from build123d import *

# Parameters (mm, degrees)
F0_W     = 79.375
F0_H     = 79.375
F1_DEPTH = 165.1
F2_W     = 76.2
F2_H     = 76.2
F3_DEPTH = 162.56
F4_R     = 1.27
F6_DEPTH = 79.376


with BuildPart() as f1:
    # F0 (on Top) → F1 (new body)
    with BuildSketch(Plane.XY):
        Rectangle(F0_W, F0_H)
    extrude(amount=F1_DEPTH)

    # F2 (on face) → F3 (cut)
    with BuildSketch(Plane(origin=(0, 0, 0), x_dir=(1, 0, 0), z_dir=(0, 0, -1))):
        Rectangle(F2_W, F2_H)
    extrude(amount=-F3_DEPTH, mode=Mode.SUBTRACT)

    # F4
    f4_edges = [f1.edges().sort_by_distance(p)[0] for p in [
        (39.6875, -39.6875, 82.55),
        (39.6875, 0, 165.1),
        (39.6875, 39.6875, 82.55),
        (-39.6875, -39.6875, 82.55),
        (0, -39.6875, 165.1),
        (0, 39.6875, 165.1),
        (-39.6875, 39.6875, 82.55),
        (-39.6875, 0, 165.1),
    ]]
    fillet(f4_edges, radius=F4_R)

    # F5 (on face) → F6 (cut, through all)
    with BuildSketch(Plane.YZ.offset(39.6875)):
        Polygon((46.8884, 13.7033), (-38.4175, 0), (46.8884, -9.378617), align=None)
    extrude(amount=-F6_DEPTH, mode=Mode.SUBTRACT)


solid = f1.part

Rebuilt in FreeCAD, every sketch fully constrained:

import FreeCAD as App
import Part
import Sketcher

V = App.Vector
Q = App.Units.Quantity


def edges_at(feature, points):
    """Names of the edges that pass closest to the given points."""
    edges = feature.Shape.Edges
    near = lambda p: min(range(len(edges)), key=lambda i: edges[i].distToShape(Part.Vertex(*p))[0])
    return sorted({f"Edge{near(p) + 1}" for p in points})


def add_polygon(sketch, points):
    """Adds a closed chain of lines whose ends are joined by coincident constraints."""
    first, n = sketch.GeometryCount, len(points)
    for a, b in zip(points, points[1:] + points[:1]):
        sketch.addGeometry(Part.LineSegment(App.Vector(*a, 0), App.Vector(*b, 0)), False)
    for i in range(n):
        sketch.addConstraint(Sketcher.Constraint("Coincident", first + i, 2, first + (i + 1) % n, 1))

doc = App.newDocument("Part")
params = doc.addObject("Spreadsheet::Sheet", "Params")
for row, (alias, value) in enumerate([
    ("sketch1_width", "3.125 in"),
    ("pad1_length", "6.5 in"),
    ("sketch2_width", "3 in"),
    ("pocket1_length", "6.4 in"),
    ("fillet_radius", "0.05 in"),
], start=1):
    params.set(f"A{row}", alias)
    params.set(f"B{row}", "=" + value)
    params.setAlias(f"B{row}", alias)

body = doc.addObject("PartDesign::Body", "Body")

# Sketch on XY plane
sketch1 = body.newObject("Sketcher::SketchObject", "Sketch")
sketch1.AttachmentSupport = (doc.getObject("XY_Plane"), [""])
sketch1.MapMode = "FlatFace"
add_polygon(sketch1, [(-39.6875, 39.6875), (-39.6875, -39.6875), (39.6875, -39.6875), (39.6875, 39.6875)])  # lines 0-3
sketch1.addConstraint(Sketcher.Constraint("Vertical", 0))
sketch1.addConstraint(Sketcher.Constraint("Horizontal", 1))
sketch1.addConstraint(Sketcher.Constraint("Vertical", 2))
sketch1.addConstraint(Sketcher.Constraint("Horizontal", 3))
sketch1.addConstraint(Sketcher.Constraint("Symmetric", 0, 2, 2, 2, -1, 1))
sketch1.addConstraint(Sketcher.Constraint("Equal", 3, 0))
sketch1.addConstraint(Sketcher.Constraint("DistanceX", 1, 1, 1, 2, Q("3.125 in")))
sketch1.setExpression("Constraints[10]", "Params.sketch1_width")
pad1 = body.newObject("PartDesign::Pad", "Pad")
pad1.Profile = sketch1
pad1.setExpression("Length", "Params.pad1_length")

# Sketch on XY plane
sketch2 = body.newObject("Sketcher::SketchObject", "Sketch001")
sketch2.AttachmentSupport = (doc.getObject("XY_Plane"), [""])
sketch2.MapMode = "FlatFace"
add_polygon(sketch2, [(-38.1, -38.1), (-38.1, 38.1), (38.1, 38.1), (38.1, -38.1)])  # lines 0-3
sketch2.addConstraint(Sketcher.Constraint("Vertical", 0))
sketch2.addConstraint(Sketcher.Constraint("Horizontal", 1))
sketch2.addConstraint(Sketcher.Constraint("Vertical", 2))
sketch2.addConstraint(Sketcher.Constraint("Horizontal", 3))
sketch2.addConstraint(Sketcher.Constraint("Symmetric", 0, 2, 2, 2, -1, 1))
sketch2.addConstraint(Sketcher.Constraint("Equal", 3, 0))
sketch2.addConstraint(Sketcher.Constraint("DistanceX", 1, 1, 1, 2, Q("3 in")))
sketch2.setExpression("Constraints[10]", "Params.sketch2_width")
pocket1 = body.newObject("PartDesign::Pocket", "Pocket")
pocket1.Profile = sketch2
pocket1.setExpression("Length", "Params.pocket1_length")
pocket1.Reversed = True
doc.recompute()

fillet = body.newObject("PartDesign::Fillet", "Fillet")
fillet.Base = (pocket1, edges_at(pocket1, [
    (39.688, -39.688, 82.55),
    (39.688, 0, 165.1),
    (39.688, 39.688, 82.55),
    (-39.688, -39.688, 82.55),
    (0, -39.688, 165.1),
    (0, 39.688, 165.1),
    (-39.688, 39.688, 82.55),
    (-39.688, 0, 165.1),
]))
fillet.setExpression("Radius", "Params.fillet_radius")

# Sketch on YZ plane
sketch3 = body.newObject("Sketcher::SketchObject", "Sketch002")
sketch3.AttachmentSupport = (doc.getObject("YZ_Plane"), [""])
sketch3.MapMode = "FlatFace"
sketch3.AttachmentOffset = App.Placement(V(0, 0, 1.5625 * 25.4), App.Rotation())
add_polygon(sketch3, [(46.8884, 13.7033), (-38.4175, 0), (46.8884, -9.378617)])  # lines 0-2
sketch3.addConstraint(Sketcher.Constraint("Vertical", 2))
sketch3.addConstraint(Sketcher.Constraint("PointOnObject", 0, 2, -1))
sketch3.addConstraint(Sketcher.Constraint("DistanceX", -1, 1, 1, 2, Q("1.846 in")))
sketch3.addConstraint(Sketcher.Constraint("DistanceX", 0, 2, -1, 1, Q("1.5125 in")))
sketch3.addConstraint(Sketcher.Constraint("DistanceY", -1, 1, 2, 2, Q("0.5395 in")))
sketch3.addConstraint(Sketcher.Constraint("Distance", 1, 85.819899))
pocket2 = body.newObject("PartDesign::Pocket", "Pocket001")
pocket2.Profile = sketch3
pocket2.Type = "ThroughAll"

doc.recompute()
